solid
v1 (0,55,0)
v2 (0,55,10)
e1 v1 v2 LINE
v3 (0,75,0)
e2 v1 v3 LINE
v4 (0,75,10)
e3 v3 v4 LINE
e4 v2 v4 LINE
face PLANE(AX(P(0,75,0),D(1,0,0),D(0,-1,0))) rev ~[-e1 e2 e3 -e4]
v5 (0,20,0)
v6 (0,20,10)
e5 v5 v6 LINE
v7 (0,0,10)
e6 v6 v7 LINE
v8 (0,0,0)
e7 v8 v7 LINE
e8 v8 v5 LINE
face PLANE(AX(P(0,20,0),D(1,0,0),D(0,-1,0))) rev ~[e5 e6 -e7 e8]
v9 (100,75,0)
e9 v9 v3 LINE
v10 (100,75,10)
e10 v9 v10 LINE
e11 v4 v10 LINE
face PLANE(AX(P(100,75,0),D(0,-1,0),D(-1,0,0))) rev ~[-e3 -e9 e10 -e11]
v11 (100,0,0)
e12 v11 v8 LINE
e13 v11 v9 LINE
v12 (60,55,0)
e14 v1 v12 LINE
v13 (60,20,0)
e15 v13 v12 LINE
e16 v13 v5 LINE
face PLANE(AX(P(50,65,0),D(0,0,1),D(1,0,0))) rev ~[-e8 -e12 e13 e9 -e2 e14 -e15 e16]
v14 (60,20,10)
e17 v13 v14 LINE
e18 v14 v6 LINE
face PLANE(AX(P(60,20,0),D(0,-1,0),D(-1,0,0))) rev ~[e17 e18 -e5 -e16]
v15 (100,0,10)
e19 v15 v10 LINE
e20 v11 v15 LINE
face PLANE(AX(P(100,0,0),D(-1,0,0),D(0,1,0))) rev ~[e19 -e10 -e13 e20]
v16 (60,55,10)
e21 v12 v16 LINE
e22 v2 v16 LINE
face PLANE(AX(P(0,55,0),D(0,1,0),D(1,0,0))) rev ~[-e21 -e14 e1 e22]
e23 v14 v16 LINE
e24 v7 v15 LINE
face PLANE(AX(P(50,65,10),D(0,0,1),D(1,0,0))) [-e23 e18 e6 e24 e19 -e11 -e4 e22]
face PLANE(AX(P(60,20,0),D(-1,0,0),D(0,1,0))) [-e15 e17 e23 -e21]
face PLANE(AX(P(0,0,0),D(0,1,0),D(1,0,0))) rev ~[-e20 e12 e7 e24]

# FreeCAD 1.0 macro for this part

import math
import FreeCAD as App
import Part
import Sketcher
from FreeCAD import Vector
Q = App.Units.Quantity


def add_polygon(sketch, points):
    """Adds a closed chain of lines whose ends are joined by coincident constraints."""
    first, n = sketch.GeometryCount, len(points)
    for a, b in zip(points, points[1:] + points[:1]):
        sketch.addGeometry(Part.LineSegment(App.Vector(*a, 0), App.Vector(*b, 0)), False)
    for i in range(n):
        sketch.addConstraint(Sketcher.Constraint("Coincident", first + i, 2, first + (i + 1) % n, 1))

doc = App.newDocument("Part")
params = doc.addObject("Spreadsheet::Sheet", "Params")
for row, (alias, value) in enumerate([
    ("sketch1_width", "60 mm"),
    ("sketch1_width2", "100 mm"),
    ("sketch1_height", "20 mm"),
    ("sketch1_height2", "35 mm"),
    ("pad1_length", "10 mm"),
    ("sketch2_width", "15 mm"),
    ("sketch2_height", "7 mm"),
    ("pad2_length", "10 mm"),
], start=1):
    params.set(f"A{row}", alias)
    params.set(f"B{row}", "=" + value)
    params.setAlias(f"B{row}", alias)

body = doc.addObject("PartDesign::Body", "Body")

sketch1 = doc.addObject("Sketcher::SketchObject", "Sketch")
body.addObject(sketch1)
sketch1.AttachmentSupport = (doc.XY_Plane, [""])
sketch1.MapMode = "FlatFace"
add_polygon(sketch1, [(0, 75), (0, 55), (60, 55), (60, 20), (0, 20), (0, 0), (100, 0), (100, 75)])
sketch1.addConstraint(Sketcher.Constraint("Vertical", 0))
sketch1.addConstraint(Sketcher.Constraint("Horizontal", 1))
sketch1.addConstraint(Sketcher.Constraint("Vertical", 2))
sketch1.addConstraint(Sketcher.Constraint("Horizontal", 3))
sketch1.addConstraint(Sketcher.Constraint("Vertical", 4))
sketch1.addConstraint(Sketcher.Constraint("Horizontal", 5))
sketch1.addConstraint(Sketcher.Constraint("Vertical", 6))
sketch1.addConstraint(Sketcher.Constraint("Horizontal", 7))
sketch1.addConstraint(Sketcher.Constraint("Coincident", 4, 2, -1, 1))
sketch1.addConstraint(Sketcher.Constraint("PointOnObject", 0, 2, -2))
sketch1.addConstraint(Sketcher.Constraint("Equal", 0, 4))
sketch1.addConstraint(Sketcher.Constraint("DistanceX", 1, 1, 1, 2, Q("60 mm")))
sketch1.addConstraint(Sketcher.Constraint("DistanceX", 5, 1, 5, 2, Q("100 mm")))
sketch1.addConstraint(Sketcher.Constraint("DistanceY", 0, 2, 0, 1, Q("20 mm")))
sketch1.addConstraint(Sketcher.Constraint("DistanceY", 2, 2, 2, 1, Q("35 mm")))
sketch1.setExpression("Constraints[19]", "Params.sketch1_width")
sketch1.setExpression("Constraints[20]", "Params.sketch1_width2")
sketch1.setExpression("Constraints[21]", "Params.sketch1_height")
sketch1.setExpression("Constraints[22]", "Params.sketch1_height2")
pad1 = doc.addObject("PartDesign::Pad", "Pad")
body.addObject(pad1)
pad1.Profile = sketch1
pad1.setExpression("Length", "Params.pad1_length")

sketch2 = doc.addObject("Sketcher::SketchObject", "Sketch001")
body.addObject(sketch2)
sketch2.AttachmentSupport = (doc.XY_Plane, [""])
sketch2.MapMode = "FlatFace"
sketch2.AttachmentOffset = App.Placement(Vector(0, 0, 10), App.Rotation())
sketch2.addGeometry(Part.ArcOfCircle(Part.Circle(Vector(18.88527, 47.102993, 0), Vector(0, 0, 1), 28.166262), math.radians(97.928693), math.radians(132.105094)), False)
sketch2.addGeometry(Part.LineSegment(Vector(15, 75, 0), Vector(0, 75, 0)), False)
sketch2.addGeometry(Part.LineSegment(Vector(0, 75, 0), Vector(0, 68, 0)), False)
sketch2.addGeometry(Part.ArcOfCircle(Part.Circle(Vector(15.620434, 20.90093, 0), Vector(0, 0, 1), 20.910136), math.radians(-138.333489), math.radians(-91.700298)), False)
sketch2.addGeometry(Part.LineSegment(Vector(0, 7, 0), Vector(0, 0, 0)), False)
sketch2.addGeometry(Part.LineSegment(Vector(0, 0, 0), Vector(15, 0, 0)), False)
sketch2.addConstraint(Sketcher.Constraint("Coincident", 0, 1, 1, 1))
sketch2.addConstraint(Sketcher.Constraint("Coincident", 1, 2, 2, 1))
sketch2.addConstraint(Sketcher.Constraint("Coincident", 2, 2, 0, 2))
sketch2.addConstraint(Sketcher.Constraint("Coincident", 3, 1, 4, 1))
sketch2.addConstraint(Sketcher.Constraint("Coincident", 4, 2, 5, 1))
sketch2.addConstraint(Sketcher.Constraint("Coincident", 5, 2, 3, 2))
sketch2.addConstraint(Sketcher.Constraint("Horizontal", 1))
sketch2.addConstraint(Sketcher.Constraint("Vertical", 2))
sketch2.addConstraint(Sketcher.Constraint("Vertical", 4))
sketch2.addConstraint(Sketcher.Constraint("Horizontal", 5))
sketch2.addConstraint(Sketcher.Constraint("Coincident", 4, 2, -1, 1))
sketch2.addConstraint(Sketcher.Constraint("PointOnObject", 1, 2, -2))
sketch2.addConstraint(Sketcher.Constraint("Vertical", 0, 1, 5, 2))
sketch2.addConstraint(Sketcher.Constraint("Equal", 2, 4))
sketch2.addConstraint(Sketcher.Constraint("DistanceX", 1, 2, 1, 1, Q("15 mm")))
sketch2.addConstraint(Sketcher.Constraint("DistanceY", 2, 2, 2, 1, Q("7 mm")))
sketch2.addConstraint(Sketcher.Constraint("DistanceY", -1, 1, 0, 1, Q("75 mm")))
sketch2.addConstraint(Sketcher.Constraint("Radius", 0, Q("28.166262 mm")))
sketch2.addConstraint(Sketcher.Constraint("Radius", 3, Q("20.910136 mm")))
sketch2.setExpression("Constraints[14]", "Params.sketch2_width")
sketch2.setExpression("Constraints[15]", "Params.sketch2_height")
pad2 = doc.addObject("PartDesign::Pad", "Pad001")
body.addObject(pad2)
pad2.Profile = sketch2
pad2.setExpression("Length", "Params.pad2_length")
pad2.Reversed = True

doc.recompute()
